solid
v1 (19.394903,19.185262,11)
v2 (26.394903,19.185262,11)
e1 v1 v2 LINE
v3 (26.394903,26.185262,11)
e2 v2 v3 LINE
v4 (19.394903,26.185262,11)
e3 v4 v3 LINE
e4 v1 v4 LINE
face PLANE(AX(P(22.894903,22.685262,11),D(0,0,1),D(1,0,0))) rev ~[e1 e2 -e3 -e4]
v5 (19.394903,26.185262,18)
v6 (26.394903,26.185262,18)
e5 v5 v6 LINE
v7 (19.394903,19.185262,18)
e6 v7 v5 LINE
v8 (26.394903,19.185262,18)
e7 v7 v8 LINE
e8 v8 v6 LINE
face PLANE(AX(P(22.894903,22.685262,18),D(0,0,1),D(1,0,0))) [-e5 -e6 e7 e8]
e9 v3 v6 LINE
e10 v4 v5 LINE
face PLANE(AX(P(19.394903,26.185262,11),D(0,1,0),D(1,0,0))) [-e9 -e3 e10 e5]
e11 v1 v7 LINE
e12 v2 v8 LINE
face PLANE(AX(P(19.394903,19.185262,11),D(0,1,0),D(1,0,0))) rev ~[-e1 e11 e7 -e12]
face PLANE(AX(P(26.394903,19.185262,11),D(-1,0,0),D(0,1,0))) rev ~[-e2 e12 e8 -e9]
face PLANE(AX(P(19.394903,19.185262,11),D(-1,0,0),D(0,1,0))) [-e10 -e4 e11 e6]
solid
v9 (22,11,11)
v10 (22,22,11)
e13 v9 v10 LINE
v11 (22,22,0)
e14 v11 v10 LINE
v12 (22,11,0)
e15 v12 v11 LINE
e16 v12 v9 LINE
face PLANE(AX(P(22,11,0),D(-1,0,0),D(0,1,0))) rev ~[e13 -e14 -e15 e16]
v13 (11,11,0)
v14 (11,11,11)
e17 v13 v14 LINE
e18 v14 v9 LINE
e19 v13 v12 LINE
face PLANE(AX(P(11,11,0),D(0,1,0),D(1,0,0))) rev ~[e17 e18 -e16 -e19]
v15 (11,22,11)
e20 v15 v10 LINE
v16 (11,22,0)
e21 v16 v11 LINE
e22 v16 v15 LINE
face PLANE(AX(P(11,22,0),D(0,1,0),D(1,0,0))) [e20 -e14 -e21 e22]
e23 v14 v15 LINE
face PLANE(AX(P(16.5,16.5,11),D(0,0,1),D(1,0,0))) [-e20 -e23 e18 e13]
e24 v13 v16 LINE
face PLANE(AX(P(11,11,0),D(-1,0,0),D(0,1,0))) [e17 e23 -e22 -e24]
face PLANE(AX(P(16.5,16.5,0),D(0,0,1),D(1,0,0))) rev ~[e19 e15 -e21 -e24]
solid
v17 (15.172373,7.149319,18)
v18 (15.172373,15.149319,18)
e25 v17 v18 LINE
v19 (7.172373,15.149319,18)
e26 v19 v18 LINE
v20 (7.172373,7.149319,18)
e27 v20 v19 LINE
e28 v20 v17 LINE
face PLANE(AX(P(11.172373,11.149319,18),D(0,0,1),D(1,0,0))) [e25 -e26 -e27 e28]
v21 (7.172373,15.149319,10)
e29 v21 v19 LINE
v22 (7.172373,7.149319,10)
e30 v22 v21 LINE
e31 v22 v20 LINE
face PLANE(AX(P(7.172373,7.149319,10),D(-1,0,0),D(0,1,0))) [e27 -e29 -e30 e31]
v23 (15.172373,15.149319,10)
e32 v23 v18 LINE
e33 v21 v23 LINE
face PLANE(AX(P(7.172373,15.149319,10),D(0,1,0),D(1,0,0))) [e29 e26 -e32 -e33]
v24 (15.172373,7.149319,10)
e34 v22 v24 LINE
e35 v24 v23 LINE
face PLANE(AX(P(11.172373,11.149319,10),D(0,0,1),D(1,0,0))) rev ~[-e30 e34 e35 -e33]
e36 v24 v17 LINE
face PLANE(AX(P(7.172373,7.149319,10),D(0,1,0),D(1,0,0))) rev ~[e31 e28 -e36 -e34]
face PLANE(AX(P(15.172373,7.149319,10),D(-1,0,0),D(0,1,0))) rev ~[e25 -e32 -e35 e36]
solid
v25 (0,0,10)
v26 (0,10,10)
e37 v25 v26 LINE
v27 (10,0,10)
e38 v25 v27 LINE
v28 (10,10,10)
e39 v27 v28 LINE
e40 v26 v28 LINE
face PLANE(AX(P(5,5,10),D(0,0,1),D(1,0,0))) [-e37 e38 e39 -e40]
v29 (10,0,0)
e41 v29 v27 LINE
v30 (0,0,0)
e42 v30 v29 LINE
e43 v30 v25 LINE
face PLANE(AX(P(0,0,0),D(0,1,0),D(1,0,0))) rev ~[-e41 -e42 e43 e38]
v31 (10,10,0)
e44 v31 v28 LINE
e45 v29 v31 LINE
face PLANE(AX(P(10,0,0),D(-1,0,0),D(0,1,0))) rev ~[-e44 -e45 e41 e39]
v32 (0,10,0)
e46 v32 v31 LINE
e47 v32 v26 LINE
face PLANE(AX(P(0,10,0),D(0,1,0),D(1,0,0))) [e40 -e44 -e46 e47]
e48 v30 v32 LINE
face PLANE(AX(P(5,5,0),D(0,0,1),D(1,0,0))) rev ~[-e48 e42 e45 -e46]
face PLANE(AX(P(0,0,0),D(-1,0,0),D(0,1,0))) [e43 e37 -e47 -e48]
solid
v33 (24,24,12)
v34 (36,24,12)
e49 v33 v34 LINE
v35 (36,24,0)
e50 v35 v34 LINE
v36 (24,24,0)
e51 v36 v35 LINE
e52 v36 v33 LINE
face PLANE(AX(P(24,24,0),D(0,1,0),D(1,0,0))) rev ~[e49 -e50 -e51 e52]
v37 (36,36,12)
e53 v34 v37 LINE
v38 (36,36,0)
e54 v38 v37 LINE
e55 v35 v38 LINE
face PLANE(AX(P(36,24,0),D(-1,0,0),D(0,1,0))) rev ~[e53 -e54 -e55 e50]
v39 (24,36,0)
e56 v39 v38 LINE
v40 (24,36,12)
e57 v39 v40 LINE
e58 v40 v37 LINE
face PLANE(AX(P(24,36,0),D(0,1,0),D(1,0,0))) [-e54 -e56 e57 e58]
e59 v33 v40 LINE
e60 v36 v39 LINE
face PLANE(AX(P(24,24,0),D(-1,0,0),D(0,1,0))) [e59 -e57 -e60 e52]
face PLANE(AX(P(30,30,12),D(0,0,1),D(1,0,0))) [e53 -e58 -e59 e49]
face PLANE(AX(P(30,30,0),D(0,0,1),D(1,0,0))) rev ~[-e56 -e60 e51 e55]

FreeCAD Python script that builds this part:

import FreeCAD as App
import Part
import Sketcher


def add_polygon(sketch, points):
    """Adds a closed chain of lines whose ends are joined by coincident constraints."""
    first, n = sketch.GeometryCount, len(points)
    for a, b in zip(points, points[1:] + points[:1]):
        sketch.addGeometry(Part.LineSegment(App.Vector(*a, 0), App.Vector(*b, 0)), False)
    for i in range(n):
        sketch.addConstraint(Sketcher.Constraint("Coincident", first + i, 2, first + (i + 1) % n, 1))

doc = App.newDocument("Part")
body = doc.addObject("PartDesign::Body", "Body")

sketch1 = body.newObject("Sketcher::SketchObject", "Sketch")
sketch1.AttachmentSupport = (doc.getObject("XY_Plane"), [""])
sketch1.MapMode = "FlatFace"
add_polygon(sketch1, [(0, 10), (0, 0), (10, 0), (10, 10)])
sketch1.addConstraint([
    Sketcher.Constraint("Vertical", 0),
    Sketcher.Constraint("Horizontal", 1),
    Sketcher.Constraint("Vertical", 2),
    Sketcher.Constraint("Horizontal", 3),
    Sketcher.Constraint("Coincident", 0, 2, -1, 1),
    Sketcher.Constraint("Equal", 3, 0),
    Sketcher.Constraint("DistanceX", 1, 1, 1, 2, 10.0),
])
pad1 = body.newObject("PartDesign::Pad", "Pad")
pad1.Profile = sketch1
pad1.Length = 10
body2 = doc.addObject("PartDesign::Body", "Body001")

sketch2 = body2.newObject("Sketcher::SketchObject", "Sketch001")
sketch2.AttachmentSupport = (doc.getObject("XY_Plane001"), [""])
sketch2.MapMode = "FlatFace"
add_polygon(sketch2, [(11, 22), (11, 11), (22, 11), (22, 22)])
sketch2.addConstraint([
    Sketcher.Constraint("Vertical", 0),
    Sketcher.Constraint("Horizontal", 1),
    Sketcher.Constraint("Vertical", 2),
    Sketcher.Constraint("Horizontal", 3),
    Sketcher.Constraint("Equal", 3, 0),
    Sketcher.Constraint("DistanceX", 1, 1, 1, 2, 11.0),
    Sketcher.Constraint("DistanceX", -1, 1, 0, 2, 11.0),
    Sketcher.Constraint("DistanceY", -1, 1, 0, 2, 11.0),
])
pad2 = body2.newObject("PartDesign::Pad", "Pad001")
pad2.Profile = sketch2
pad2.Length = 11
body3 = doc.addObject("PartDesign::Body", "Body002")

sketch3 = body3.newObject("Sketcher::SketchObject", "Sketch002")
sketch3.AttachmentSupport = (doc.getObject("XY_Plane002"), [""])
sketch3.MapMode = "FlatFace"
add_polygon(sketch3, [(24, 36), (24, 24), (36, 24), (36, 36)])
sketch3.addConstraint([
    Sketcher.Constraint("Vertical", 0),
    Sketcher.Constraint("Horizontal", 1),
    Sketcher.Constraint("Vertical", 2),
    Sketcher.Constraint("Horizontal", 3),
    Sketcher.Constraint("Equal", 3, 0),
    Sketcher.Constraint("DistanceX", 1, 1, 1, 2, 12.0),
    Sketcher.Constraint("DistanceX", -1, 1, 0, 2, 24.0),
    Sketcher.Constraint("DistanceY", -1, 1, 0, 2, 24.0),
])
pad3 = body3.newObject("PartDesign::Pad", "Pad002")
pad3.Profile = sketch3
pad3.Length = 12
body4 = doc.addObject("PartDesign::Body", "Body003")

sketch4 = body4.newObject("Sketcher::SketchObject", "Sketch003")
sketch4.AttachmentSupport = (doc.getObject("XY_Plane003"), [""])
sketch4.MapMode = "FlatFace"
sketch4.AttachmentOffset = App.Placement(App.Vector(0, 0, 10), App.Rotation())
add_polygon(sketch4, [(7, 15), (7, 7), (15, 7), (15, 15)])
sketch4.addConstraint([
    Sketcher.Constraint("Vertical", 0),
    Sketcher.Constraint("Horizontal", 1),
    Sketcher.Constraint("Vertical", 2),
    Sketcher.Constraint("Horizontal", 3),
    Sketcher.Constraint("Equal", 3, 0),
    Sketcher.Constraint("DistanceX", 1, 1, 1, 2, 8.0),
    Sketcher.Constraint("DistanceY", -1, 1, 0, 2, 7.149319),
    Sketcher.Constraint("DistanceX", -1, 1, 0, 2, 7.172373),
])
pad4 = body4.newObject("PartDesign::Pad", "Pad003")
pad4.Profile = sketch4
pad4.Length = 8
body5 = doc.addObject("PartDesign::Body", "Body004")

sketch5 = body5.newObject("Sketcher::SketchObject", "Sketch004")
sketch5.AttachmentSupport = (doc.getObject("XY_Plane004"), [""])
sketch5.MapMode = "FlatFace"
sketch5.AttachmentOffset = App.Placement(App.Vector(0, 0, 11), App.Rotation())
add_polygon(sketch5, [(19, 26), (19, 19), (26, 19), (26, 26)])
sketch5.addConstraint([
    Sketcher.Constraint("Vertical", 0),
    Sketcher.Constraint("Horizontal", 1),
    Sketcher.Constraint("Vertical", 2),
    Sketcher.Constraint("Horizontal", 3),
    Sketcher.Constraint("Equal", 3, 0),
    Sketcher.Constraint("DistanceX", 1, 1, 1, 2, 7.0),
    Sketcher.Constraint("DistanceX", -1, 1, 0, 2, 19.394903),
    Sketcher.Constraint("DistanceY", -1, 1, 0, 2, 19.185262),
])
pad5 = body5.newObject("PartDesign::Pad", "Pad004")
pad5.Profile = sketch5
pad5.Length = 7

doc.recompute()
